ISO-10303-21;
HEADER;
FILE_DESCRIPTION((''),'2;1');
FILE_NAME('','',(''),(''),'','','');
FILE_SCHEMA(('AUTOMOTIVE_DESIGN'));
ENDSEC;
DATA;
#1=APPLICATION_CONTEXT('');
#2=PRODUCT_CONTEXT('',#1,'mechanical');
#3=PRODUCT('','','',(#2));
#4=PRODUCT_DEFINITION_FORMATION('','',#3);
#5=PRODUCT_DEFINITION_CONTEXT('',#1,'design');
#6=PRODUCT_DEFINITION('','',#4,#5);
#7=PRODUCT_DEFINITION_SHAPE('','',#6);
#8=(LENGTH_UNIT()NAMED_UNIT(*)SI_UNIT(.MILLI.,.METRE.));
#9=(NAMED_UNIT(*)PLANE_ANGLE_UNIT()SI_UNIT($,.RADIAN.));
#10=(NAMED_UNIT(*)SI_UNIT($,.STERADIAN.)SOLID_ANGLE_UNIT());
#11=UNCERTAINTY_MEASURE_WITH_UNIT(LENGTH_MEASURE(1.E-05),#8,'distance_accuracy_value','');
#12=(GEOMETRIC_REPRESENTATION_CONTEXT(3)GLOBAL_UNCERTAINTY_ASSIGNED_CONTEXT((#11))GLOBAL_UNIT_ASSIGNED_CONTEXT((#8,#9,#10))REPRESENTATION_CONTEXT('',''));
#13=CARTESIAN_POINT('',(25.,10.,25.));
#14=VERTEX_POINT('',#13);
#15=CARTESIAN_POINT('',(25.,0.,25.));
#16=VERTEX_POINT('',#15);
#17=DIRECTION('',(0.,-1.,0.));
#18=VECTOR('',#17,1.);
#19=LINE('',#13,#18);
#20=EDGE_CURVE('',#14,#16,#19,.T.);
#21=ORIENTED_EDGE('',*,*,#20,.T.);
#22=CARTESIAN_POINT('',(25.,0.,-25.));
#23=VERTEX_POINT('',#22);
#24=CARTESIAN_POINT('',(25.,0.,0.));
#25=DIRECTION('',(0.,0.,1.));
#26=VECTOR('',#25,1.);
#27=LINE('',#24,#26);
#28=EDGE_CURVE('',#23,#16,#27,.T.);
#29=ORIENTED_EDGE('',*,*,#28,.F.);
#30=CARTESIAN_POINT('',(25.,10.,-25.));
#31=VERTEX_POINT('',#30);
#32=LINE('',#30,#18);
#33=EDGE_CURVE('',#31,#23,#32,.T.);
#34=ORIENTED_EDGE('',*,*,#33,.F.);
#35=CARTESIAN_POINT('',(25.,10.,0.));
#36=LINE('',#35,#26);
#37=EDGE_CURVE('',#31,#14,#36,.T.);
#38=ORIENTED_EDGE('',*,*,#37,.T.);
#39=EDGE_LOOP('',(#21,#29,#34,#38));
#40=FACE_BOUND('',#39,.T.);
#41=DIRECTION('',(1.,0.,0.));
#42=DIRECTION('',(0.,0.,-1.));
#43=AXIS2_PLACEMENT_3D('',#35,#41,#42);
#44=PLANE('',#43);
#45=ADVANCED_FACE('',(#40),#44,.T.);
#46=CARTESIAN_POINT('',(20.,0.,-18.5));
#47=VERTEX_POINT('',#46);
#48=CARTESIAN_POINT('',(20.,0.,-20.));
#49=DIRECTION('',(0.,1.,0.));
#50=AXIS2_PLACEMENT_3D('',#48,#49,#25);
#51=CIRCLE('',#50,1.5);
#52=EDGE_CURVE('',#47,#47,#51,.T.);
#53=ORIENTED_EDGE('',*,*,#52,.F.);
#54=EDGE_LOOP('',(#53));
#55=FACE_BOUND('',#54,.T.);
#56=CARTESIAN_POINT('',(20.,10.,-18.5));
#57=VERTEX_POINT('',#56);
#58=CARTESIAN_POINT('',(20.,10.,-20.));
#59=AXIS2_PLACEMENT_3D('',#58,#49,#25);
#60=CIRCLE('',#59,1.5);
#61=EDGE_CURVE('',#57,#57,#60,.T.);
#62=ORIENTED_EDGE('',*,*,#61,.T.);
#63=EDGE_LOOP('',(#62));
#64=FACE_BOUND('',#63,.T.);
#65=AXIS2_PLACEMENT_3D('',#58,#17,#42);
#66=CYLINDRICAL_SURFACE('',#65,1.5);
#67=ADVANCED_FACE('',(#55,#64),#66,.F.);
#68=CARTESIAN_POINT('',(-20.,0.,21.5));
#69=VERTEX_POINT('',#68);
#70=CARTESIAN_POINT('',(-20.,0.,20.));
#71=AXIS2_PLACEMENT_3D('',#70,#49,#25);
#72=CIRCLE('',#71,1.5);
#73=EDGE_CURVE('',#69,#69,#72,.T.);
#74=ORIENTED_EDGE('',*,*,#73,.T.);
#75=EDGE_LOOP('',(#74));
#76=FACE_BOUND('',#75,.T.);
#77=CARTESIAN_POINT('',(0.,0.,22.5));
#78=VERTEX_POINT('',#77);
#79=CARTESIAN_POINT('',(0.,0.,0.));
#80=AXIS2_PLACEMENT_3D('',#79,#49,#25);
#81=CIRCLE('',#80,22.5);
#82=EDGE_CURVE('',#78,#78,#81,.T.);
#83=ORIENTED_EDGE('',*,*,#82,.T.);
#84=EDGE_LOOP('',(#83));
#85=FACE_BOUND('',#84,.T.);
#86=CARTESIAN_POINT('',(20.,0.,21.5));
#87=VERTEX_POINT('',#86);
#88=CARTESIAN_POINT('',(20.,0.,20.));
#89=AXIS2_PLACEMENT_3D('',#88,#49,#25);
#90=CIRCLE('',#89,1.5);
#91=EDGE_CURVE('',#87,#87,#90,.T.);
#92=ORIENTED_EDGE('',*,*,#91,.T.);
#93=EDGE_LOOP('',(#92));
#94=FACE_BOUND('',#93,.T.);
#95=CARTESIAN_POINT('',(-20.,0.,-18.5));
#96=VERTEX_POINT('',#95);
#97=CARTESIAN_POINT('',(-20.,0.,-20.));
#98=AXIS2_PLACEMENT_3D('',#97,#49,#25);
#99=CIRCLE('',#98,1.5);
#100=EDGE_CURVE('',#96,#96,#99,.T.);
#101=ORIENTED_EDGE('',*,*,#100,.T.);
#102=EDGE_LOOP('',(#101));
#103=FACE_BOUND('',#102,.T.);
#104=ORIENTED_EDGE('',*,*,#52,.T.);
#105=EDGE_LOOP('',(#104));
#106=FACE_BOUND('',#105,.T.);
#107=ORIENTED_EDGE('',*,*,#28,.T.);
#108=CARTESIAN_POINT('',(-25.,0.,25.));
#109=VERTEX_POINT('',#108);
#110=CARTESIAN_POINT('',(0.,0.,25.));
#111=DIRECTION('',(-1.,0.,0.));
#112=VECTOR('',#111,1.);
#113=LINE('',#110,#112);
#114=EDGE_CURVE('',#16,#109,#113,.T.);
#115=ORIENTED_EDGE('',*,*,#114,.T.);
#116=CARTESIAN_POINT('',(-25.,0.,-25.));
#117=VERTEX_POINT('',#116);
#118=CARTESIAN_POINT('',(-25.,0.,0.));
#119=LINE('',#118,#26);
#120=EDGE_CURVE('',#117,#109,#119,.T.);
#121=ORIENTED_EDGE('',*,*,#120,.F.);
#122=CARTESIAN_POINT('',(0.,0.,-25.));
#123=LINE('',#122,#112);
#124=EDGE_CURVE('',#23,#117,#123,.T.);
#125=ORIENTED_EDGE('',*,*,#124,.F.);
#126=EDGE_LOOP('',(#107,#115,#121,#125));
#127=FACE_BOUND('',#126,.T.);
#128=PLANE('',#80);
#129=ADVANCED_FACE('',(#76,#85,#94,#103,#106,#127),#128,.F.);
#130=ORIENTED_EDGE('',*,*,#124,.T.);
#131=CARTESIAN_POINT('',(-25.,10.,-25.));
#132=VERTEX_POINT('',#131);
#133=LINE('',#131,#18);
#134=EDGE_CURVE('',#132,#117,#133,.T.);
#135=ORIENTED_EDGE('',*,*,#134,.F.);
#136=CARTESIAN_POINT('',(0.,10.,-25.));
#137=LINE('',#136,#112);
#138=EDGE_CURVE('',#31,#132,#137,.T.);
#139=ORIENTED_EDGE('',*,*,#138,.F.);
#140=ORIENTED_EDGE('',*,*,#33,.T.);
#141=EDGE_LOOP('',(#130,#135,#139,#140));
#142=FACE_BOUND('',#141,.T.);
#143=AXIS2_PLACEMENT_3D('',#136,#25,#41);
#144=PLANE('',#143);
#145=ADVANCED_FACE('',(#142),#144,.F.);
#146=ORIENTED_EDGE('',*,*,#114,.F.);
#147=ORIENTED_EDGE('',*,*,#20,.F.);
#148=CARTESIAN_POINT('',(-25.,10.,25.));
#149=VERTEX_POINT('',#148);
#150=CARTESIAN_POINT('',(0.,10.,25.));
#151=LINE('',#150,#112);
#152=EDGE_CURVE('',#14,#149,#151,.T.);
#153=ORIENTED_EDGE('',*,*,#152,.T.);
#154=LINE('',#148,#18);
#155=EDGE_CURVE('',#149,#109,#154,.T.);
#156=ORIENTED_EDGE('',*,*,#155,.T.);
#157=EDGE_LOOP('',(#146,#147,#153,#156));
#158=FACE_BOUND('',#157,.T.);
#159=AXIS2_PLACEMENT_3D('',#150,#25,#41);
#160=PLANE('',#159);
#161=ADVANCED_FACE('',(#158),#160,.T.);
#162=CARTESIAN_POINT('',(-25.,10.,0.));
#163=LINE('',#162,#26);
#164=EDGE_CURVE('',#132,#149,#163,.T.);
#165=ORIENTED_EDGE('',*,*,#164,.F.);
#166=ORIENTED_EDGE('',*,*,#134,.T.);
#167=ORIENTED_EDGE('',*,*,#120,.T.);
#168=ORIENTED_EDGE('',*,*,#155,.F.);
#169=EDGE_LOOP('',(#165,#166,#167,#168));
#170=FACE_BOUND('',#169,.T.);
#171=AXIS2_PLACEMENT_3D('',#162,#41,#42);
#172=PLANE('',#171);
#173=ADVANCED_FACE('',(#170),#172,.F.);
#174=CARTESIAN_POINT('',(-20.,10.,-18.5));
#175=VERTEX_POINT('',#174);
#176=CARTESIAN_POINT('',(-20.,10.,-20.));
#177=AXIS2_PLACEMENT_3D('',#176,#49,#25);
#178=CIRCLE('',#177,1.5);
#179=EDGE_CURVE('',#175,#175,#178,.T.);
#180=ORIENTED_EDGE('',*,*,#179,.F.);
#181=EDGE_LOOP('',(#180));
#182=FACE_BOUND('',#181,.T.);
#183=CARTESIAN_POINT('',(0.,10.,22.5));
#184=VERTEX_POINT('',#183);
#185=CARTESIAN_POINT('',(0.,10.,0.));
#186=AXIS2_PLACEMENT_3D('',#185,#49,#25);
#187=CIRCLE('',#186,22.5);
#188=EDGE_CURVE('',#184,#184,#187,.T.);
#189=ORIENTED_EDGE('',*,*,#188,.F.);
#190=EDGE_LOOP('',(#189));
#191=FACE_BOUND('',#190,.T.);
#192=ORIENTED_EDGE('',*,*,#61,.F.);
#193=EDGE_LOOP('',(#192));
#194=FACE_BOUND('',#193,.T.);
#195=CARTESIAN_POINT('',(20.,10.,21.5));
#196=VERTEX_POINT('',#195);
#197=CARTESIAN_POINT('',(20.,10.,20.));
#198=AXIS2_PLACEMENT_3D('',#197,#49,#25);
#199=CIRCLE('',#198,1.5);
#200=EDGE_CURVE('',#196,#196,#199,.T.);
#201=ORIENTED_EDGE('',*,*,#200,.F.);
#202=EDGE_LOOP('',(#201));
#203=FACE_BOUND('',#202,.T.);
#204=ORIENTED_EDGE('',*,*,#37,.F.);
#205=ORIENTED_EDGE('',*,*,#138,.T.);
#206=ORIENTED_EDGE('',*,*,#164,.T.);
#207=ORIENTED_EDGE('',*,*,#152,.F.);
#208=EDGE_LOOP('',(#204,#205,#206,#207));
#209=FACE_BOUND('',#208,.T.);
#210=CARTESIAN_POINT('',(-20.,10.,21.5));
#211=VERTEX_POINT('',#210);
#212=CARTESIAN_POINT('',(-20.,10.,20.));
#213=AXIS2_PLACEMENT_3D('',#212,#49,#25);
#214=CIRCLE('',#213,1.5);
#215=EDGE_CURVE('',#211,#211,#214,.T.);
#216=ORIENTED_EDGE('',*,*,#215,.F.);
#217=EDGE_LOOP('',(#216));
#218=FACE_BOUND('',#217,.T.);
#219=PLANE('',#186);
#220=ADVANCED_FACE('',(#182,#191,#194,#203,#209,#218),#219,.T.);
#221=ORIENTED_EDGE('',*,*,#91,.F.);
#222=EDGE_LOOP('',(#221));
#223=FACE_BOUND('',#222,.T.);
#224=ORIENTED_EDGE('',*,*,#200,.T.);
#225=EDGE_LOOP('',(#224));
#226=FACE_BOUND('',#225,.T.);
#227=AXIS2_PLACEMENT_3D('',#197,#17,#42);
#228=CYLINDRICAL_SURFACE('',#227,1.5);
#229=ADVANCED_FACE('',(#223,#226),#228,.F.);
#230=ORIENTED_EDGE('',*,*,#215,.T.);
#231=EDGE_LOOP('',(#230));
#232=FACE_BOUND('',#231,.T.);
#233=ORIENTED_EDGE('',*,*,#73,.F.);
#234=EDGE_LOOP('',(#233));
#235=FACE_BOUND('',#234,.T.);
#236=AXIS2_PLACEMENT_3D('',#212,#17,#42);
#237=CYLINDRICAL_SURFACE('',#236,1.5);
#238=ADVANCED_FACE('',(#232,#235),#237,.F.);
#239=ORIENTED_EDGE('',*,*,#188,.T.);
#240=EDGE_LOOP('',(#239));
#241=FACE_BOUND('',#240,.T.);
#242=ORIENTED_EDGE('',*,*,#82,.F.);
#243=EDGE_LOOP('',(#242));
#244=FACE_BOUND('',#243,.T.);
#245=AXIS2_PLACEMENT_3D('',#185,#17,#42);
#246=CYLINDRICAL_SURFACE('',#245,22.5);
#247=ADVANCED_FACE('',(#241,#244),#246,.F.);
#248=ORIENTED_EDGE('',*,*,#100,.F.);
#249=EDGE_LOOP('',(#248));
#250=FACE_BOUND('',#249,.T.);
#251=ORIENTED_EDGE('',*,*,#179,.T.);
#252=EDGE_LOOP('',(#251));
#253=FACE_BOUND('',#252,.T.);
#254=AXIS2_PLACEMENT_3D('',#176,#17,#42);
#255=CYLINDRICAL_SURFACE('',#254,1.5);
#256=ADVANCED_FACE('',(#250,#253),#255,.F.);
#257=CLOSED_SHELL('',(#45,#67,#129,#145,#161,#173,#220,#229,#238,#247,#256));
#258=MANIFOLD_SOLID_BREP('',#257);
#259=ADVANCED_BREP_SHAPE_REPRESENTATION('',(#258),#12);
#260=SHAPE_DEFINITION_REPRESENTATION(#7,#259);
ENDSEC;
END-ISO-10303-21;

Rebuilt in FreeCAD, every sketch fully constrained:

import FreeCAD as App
import Part
import Sketcher
from FreeCAD import Vector

doc = App.newDocument("Part")
body = doc.addObject("PartDesign::Body", "Body")

# Sketch on XZ plane
sketch1 = body.newObject("Sketcher::SketchObject", "Sketch")
sketch1.AttachmentSupport = (doc.getObject("XZ_Plane"), [""])
sketch1.MapMode = "FlatFace"
sketch1.addGeometry([
    Part.LineSegment(Vector(-25, -25, 0), Vector(-25, 25, 0)),  # 0
    Part.LineSegment(Vector(-25, 25, 0), Vector(25, 25, 0)),  # 1
    Part.LineSegment(Vector(25, 25, 0), Vector(25, -25, 0)),  # 2
    Part.LineSegment(Vector(25, -25, 0), Vector(-25, -25, 0)),  # 3
    Part.Circle(Vector(-20, 20, 0), Vector(0, 0, 1), 1.5),  # 4
    Part.Circle(Vector(20, 20, 0), Vector(0, 0, 1), 1.5),  # 5
    Part.Circle(Vector(-20, -20, 0), Vector(0, 0, 1), 1.5),  # 6
    Part.Circle(Vector(0, 0, 0), Vector(0, 0, 1), 22.5),  # 7
    Part.Circle(Vector(20, -20, 0), Vector(0, 0, 1), 1.5),  # 8
], False)
sketch1.addConstraint([
    Sketcher.Constraint("Coincident", 0, 2, 1, 1),
    Sketcher.Constraint("Coincident", 1, 2, 2, 1),
    Sketcher.Constraint("Coincident", 2, 2, 3, 1),
    Sketcher.Constraint("Coincident", 3, 2, 0, 1),
    Sketcher.Constraint("Vertical", 0),
    Sketcher.Constraint("Horizontal", 1),
    Sketcher.Constraint("Vertical", 2),
    Sketcher.Constraint("Horizontal", 3),
    Sketcher.Constraint("Coincident", 7, 3, -1, 1),
    Sketcher.Constraint("Equal", 4, 5),
    Sketcher.Constraint("Equal", 5, 6),
    Sketcher.Constraint("Equal", 6, 8),
    Sketcher.Constraint("Symmetric", 5, 3, 6, 3, -1, 1),
    Sketcher.Constraint("Symmetric", 4, 3, 8, 3, -1, 1),
    Sketcher.Constraint("Symmetric", 0, 2, 2, 2, -1, 1),
    Sketcher.Constraint("Symmetric", 4, 3, 5, 3, -2),
    Sketcher.Constraint("Equal", 3, 0),
    Sketcher.Constraint("Diameter", 4, 3.0),
    Sketcher.Constraint("Diameter", 7, 45.0),
    Sketcher.Constraint("DistanceX", 1, 1, 1, 2, 50.0),
    Sketcher.Constraint("DistanceX", 4, 3, -1, 1, 20.0),
    Sketcher.Constraint("DistanceY", -1, 1, 4, 3, 20.0),
])
pad1 = body.newObject("PartDesign::Pad", "Pad")
pad1.Profile = sketch1
pad1.Length = 10
pad1.Reversed = True

doc.recompute()
